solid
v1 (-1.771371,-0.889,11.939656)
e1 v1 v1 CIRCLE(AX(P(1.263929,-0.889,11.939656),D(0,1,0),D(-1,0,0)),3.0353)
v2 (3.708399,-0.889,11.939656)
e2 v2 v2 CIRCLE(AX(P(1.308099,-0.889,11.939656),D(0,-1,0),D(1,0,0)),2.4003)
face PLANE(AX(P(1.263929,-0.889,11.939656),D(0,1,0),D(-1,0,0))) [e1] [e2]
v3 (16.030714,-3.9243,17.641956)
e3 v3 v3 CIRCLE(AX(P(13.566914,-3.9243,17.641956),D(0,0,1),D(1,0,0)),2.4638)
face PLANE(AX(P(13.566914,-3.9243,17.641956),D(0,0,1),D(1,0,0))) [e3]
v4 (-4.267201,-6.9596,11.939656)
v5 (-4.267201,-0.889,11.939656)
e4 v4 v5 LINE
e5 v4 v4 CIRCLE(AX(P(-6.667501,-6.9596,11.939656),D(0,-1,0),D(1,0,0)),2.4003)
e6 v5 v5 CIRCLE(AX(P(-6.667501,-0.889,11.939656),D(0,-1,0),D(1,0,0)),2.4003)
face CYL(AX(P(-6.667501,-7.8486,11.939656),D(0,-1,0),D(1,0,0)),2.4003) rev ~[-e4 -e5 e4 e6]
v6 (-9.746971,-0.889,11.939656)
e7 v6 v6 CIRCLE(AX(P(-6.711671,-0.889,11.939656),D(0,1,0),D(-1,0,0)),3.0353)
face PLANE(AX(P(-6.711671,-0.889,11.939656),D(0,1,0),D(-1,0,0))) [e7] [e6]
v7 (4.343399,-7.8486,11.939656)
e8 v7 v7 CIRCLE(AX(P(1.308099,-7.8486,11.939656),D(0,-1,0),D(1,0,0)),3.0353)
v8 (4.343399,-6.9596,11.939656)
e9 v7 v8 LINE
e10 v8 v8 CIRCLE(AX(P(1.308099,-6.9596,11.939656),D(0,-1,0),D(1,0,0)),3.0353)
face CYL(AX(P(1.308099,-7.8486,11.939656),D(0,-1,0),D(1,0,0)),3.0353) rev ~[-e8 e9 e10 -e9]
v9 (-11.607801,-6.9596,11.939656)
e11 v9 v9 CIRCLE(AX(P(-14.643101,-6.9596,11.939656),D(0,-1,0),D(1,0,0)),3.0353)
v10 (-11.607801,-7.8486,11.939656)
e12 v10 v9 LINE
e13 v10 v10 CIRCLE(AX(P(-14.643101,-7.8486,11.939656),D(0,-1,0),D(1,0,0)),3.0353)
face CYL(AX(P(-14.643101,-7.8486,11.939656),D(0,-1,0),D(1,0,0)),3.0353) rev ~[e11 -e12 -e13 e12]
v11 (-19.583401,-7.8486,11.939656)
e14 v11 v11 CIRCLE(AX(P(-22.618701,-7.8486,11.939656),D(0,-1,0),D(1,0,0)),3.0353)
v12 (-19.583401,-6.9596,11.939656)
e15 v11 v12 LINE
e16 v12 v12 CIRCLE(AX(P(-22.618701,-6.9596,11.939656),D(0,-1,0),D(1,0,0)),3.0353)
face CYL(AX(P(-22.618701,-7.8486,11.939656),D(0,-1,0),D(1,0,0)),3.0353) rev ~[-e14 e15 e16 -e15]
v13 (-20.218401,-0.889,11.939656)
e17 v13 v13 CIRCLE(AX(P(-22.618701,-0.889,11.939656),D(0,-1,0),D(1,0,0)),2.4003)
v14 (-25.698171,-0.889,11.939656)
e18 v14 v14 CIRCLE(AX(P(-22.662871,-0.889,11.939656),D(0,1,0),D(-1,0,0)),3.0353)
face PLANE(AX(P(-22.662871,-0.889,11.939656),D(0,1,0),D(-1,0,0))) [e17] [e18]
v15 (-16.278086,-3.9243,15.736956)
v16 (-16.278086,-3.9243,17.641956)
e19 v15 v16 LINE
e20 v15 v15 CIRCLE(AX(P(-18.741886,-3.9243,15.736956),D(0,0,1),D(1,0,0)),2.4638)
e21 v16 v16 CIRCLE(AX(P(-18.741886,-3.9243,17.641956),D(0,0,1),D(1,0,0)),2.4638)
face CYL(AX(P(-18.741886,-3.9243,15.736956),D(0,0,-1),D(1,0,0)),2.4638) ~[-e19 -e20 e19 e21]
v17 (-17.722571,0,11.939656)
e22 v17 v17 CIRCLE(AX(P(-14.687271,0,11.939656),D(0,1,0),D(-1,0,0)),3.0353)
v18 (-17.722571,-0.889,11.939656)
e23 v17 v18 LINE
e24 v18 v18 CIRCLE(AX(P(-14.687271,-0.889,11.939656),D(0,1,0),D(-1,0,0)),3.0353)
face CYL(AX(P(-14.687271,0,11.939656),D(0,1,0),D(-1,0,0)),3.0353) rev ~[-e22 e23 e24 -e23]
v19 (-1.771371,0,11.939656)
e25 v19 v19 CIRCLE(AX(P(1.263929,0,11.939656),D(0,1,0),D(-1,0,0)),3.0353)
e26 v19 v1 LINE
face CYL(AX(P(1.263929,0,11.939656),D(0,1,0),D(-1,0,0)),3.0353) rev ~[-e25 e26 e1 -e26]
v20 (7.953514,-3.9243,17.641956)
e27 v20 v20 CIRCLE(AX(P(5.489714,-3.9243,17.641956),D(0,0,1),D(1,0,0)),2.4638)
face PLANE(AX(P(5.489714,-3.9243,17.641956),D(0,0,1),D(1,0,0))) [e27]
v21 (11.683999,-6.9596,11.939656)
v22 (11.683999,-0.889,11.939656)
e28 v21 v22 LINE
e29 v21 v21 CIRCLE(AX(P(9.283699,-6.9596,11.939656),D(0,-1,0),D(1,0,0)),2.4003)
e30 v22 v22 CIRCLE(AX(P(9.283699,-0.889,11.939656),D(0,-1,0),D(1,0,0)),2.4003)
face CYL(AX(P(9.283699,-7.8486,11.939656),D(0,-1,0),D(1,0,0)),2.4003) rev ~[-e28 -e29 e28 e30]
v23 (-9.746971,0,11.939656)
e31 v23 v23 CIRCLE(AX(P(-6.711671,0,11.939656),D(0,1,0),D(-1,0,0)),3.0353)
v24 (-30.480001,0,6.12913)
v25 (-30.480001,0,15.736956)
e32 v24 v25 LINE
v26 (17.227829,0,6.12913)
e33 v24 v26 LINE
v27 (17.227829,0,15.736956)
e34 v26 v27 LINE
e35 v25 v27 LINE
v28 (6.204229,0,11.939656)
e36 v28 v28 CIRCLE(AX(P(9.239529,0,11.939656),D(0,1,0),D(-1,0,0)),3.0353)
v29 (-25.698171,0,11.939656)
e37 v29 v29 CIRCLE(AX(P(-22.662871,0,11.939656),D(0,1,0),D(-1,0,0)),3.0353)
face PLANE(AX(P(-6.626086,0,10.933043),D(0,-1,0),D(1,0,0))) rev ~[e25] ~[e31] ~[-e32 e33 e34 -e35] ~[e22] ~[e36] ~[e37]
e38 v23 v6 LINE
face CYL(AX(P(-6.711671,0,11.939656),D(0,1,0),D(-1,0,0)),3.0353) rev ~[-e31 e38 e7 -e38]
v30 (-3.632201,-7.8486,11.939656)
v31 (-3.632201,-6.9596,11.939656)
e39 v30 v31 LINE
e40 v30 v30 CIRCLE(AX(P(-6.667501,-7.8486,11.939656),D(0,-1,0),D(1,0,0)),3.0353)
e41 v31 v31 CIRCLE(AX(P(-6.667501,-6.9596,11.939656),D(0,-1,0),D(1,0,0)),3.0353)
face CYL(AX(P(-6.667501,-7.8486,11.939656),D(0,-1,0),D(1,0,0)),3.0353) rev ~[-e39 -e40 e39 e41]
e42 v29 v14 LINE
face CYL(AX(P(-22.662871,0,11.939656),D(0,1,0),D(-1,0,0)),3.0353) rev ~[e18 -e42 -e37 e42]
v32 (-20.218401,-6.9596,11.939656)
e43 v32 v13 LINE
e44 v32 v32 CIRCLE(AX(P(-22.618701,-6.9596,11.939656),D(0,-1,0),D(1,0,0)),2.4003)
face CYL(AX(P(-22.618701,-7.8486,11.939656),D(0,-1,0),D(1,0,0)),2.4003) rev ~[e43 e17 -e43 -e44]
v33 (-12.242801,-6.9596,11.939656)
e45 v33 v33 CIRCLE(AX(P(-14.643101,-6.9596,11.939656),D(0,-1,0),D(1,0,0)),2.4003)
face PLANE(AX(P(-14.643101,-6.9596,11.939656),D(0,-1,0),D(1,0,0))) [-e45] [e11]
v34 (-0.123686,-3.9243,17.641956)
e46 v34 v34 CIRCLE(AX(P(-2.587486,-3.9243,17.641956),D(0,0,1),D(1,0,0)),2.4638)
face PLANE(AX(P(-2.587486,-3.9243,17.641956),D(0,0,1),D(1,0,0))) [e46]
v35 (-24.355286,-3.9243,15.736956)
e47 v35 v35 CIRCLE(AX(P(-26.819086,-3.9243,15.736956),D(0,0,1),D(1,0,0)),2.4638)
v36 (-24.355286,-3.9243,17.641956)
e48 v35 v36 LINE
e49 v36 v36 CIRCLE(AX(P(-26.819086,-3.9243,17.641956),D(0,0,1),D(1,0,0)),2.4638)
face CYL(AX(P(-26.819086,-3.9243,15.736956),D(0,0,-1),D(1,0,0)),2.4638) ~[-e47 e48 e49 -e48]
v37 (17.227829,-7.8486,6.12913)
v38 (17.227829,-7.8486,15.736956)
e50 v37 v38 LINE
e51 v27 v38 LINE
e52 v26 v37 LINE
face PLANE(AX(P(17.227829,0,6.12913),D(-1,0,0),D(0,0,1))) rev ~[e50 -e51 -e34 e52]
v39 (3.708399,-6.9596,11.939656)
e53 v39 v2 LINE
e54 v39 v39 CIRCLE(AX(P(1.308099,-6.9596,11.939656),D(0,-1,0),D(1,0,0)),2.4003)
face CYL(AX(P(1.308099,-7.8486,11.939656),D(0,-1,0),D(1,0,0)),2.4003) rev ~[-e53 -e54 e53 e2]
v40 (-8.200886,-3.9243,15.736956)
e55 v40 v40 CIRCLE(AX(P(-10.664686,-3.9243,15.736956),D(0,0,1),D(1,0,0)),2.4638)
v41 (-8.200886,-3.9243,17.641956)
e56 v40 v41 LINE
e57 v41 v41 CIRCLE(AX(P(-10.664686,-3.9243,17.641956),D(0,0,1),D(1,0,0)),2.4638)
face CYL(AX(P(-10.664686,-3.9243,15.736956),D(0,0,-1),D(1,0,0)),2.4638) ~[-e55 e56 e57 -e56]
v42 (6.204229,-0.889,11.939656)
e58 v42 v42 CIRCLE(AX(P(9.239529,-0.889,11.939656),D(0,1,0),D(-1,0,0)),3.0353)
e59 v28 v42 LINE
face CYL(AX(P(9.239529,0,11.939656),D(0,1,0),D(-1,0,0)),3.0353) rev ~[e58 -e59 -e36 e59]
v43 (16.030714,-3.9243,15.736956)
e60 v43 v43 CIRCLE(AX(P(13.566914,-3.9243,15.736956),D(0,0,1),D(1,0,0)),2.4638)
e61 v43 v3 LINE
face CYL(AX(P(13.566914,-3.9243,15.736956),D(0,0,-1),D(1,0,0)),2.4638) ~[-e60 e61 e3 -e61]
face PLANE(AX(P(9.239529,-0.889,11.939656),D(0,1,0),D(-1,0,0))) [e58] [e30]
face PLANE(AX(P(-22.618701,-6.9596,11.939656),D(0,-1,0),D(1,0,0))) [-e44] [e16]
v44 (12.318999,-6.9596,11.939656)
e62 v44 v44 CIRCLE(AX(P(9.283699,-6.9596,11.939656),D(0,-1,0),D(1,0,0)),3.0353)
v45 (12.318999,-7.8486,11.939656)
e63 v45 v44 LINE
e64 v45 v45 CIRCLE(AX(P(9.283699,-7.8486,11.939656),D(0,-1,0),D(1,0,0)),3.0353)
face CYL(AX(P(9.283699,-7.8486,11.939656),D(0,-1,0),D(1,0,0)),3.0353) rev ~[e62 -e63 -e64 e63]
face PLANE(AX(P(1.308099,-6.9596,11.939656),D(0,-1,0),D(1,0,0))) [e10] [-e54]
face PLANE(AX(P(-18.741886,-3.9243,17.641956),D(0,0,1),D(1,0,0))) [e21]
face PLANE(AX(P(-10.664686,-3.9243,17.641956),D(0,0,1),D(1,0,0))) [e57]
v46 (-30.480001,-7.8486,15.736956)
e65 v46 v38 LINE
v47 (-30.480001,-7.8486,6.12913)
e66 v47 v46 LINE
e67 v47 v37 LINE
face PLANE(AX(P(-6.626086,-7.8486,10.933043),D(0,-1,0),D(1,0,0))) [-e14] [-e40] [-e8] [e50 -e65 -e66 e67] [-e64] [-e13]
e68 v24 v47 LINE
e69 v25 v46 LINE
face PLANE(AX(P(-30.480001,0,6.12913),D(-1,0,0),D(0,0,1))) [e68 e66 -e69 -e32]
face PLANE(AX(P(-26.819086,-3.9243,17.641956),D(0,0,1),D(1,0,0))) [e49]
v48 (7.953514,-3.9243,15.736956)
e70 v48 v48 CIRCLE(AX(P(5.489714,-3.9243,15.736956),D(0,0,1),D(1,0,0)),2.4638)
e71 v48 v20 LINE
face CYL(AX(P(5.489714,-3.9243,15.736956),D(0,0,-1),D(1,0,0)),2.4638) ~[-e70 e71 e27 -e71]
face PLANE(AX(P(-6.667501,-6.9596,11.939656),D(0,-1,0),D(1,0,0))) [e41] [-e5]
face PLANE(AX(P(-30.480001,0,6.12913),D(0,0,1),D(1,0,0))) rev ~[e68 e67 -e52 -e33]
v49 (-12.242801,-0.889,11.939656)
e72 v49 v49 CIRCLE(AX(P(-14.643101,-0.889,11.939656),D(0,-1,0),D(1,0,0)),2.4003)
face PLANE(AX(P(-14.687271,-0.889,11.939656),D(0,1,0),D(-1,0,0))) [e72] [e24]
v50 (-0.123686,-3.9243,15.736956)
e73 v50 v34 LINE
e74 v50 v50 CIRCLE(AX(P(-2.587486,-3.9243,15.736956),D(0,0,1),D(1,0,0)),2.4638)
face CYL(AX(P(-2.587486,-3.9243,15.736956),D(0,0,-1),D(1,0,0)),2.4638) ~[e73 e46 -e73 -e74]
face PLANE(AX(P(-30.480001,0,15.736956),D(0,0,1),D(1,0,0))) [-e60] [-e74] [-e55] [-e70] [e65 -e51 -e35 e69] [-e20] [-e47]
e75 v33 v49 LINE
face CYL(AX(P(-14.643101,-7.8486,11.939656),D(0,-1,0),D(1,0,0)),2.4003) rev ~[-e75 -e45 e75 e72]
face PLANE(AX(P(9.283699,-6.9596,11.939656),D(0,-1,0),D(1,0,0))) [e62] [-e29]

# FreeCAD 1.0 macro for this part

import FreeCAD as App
import Part
import Sketcher
Q = App.Units.Quantity

doc = App.newDocument("Part")
body = doc.addObject("PartDesign::Body", "Body")

# Sketch on XZ plane
sketch1 = doc.addObject("Sketcher::SketchObject", "Sketch")
body.addObject(sketch1)
sketch1.AttachmentSupport = (doc.XZ_Plane, [""])
sketch1.MapMode = "FlatFace"
sketch1.addGeometry([
    Part.LineSegment(App.Vector(-30.480001, 15.736956, 0), App.Vector(-30.480001, 6.12913, 0)),
    Part.LineSegment(App.Vector(-30.480001, 6.12913, 0), App.Vector(17.227829, 6.12913, 0)),
    Part.LineSegment(App.Vector(17.227829, 6.12913, 0), App.Vector(17.227829, 15.736956, 0)),
    Part.LineSegment(App.Vector(17.227829, 15.736956, 0), App.Vector(-30.480001, 15.736956, 0)),
], False)
sketch1.addConstraint([
    Sketcher.Constraint("Coincident", 0, 2, 1, 1),
    Sketcher.Constraint("Coincident", 1, 2, 2, 1),
    Sketcher.Constraint("Coincident", 2, 2, 3, 1),
    Sketcher.Constraint("Coincident", 3, 2, 0, 1),
    Sketcher.Constraint("Vertical", 0),
    Sketcher.Constraint("Horizontal", 1),
    Sketcher.Constraint("Vertical", 2),
    Sketcher.Constraint("Horizontal", 3),
    Sketcher.Constraint("DistanceX", 0, 2, -1, 1, Q("1.2 in")),
    Sketcher.Constraint("DistanceX", 1, 1, 1, 2, Q("47.70783 mm")),
    Sketcher.Constraint("DistanceY", 0, 2, 0, 1, Q("9.607826 mm")),
    Sketcher.Constraint("DistanceY", -1, 1, 0, 2, Q("6.12913 mm")),
])
pad1 = doc.addObject("PartDesign::Pad", "Pad")
body.addObject(pad1)
pad1.Profile = sketch1
pad1.Length = Q("0.309 in")

# Sketch on XZ plane
sketch2 = doc.addObject("Sketcher::SketchObject", "Sketch001")
body.addObject(sketch2)
sketch2.AttachmentSupport = (doc.XZ_Plane, [""])
sketch2.MapMode = "FlatFace"
sketch2.AttachmentOffset = App.Placement(App.Vector(0, 0, 0.309 * 25.4), App.Rotation())
sketch2.addGeometry([
    Part.Circle(App.Vector(-22.618701, 11.939656, 0), App.Vector(0, 0, 1), 3.0353),  # 0
    Part.Circle(App.Vector(-14.643101, 11.939656, 0), App.Vector(0, 0, 1), 3.0353),  # 1
    Part.Circle(App.Vector(-6.667501, 11.939656, 0), App.Vector(0, 0, 1), 3.0353),  # 2
    Part.Circle(App.Vector(1.308099, 11.939656, 0), App.Vector(0, 0, 1), 3.0353),  # 3
    Part.Circle(App.Vector(9.283699, 11.939656, 0), App.Vector(0, 0, 1), 3.0353),  # 4
], False)
sketch2.addConstraint([
    Sketcher.Constraint("Equal", 0, 1),
    Sketcher.Constraint("Equal", 1, 2),
    Sketcher.Constraint("Equal", 2, 3),
    Sketcher.Constraint("Equal", 3, 4),
    Sketcher.Constraint("Horizontal", 0, 3, 1, 3),
    Sketcher.Constraint("Horizontal", 1, 3, 2, 3),
    Sketcher.Constraint("Horizontal", 2, 3, 3, 3),
    Sketcher.Constraint("Horizontal", 3, 3, 4, 3),
    Sketcher.Constraint("Diameter", 0, Q("0.239 in")),
    Sketcher.Constraint("DistanceX", 0, 3, 1, 3, Q("0.314 in")),
    Sketcher.Constraint("DistanceX", 1, 3, 2, 3, Q("0.314 in")),
    Sketcher.Constraint("DistanceX", 2, 3, 3, 3, Q("0.314 in")),
    Sketcher.Constraint("DistanceX", 3, 3, 4, 3, Q("0.314 in")),
    Sketcher.Constraint("DistanceX", 0, 3, -1, 1, Q("0.8905 in")),
    Sketcher.Constraint("DistanceY", -1, 1, 0, 3, Q("11.939656 mm")),
])
pocket1 = doc.addObject("PartDesign::Pocket", "Pocket")
body.addObject(pocket1)
pocket1.Profile = sketch2
pocket1.Length = Q("0.035 in")

# Sketch on XZ plane
sketch3 = doc.addObject("Sketcher::SketchObject", "Sketch002")
body.addObject(sketch3)
sketch3.AttachmentSupport = (doc.XZ_Plane, [""])
sketch3.MapMode = "FlatFace"
sketch3.addGeometry([
    Part.Circle(App.Vector(9.239529, 11.939656, 0), App.Vector(0, 0, 1), 3.0353),  # 0
    Part.Circle(App.Vector(1.263929, 11.939656, 0), App.Vector(0, 0, 1), 3.0353),  # 1
    Part.Circle(App.Vector(-6.711671, 11.939656, 0), App.Vector(0, 0, 1), 3.0353),  # 2
    Part.Circle(App.Vector(-14.687271, 11.939656, 0), App.Vector(0, 0, 1), 3.0353),  # 3
    Part.Circle(App.Vector(-22.662871, 11.939656, 0), App.Vector(0, 0, 1), 3.0353),  # 4
], False)
sketch3.addConstraint([
    Sketcher.Constraint("Equal", 0, 1),
    Sketcher.Constraint("Equal", 1, 2),
    Sketcher.Constraint("Equal", 2, 3),
    Sketcher.Constraint("Equal", 3, 4),
    Sketcher.Constraint("Horizontal", 0, 3, 1, 3),
    Sketcher.Constraint("Horizontal", 1, 3, 2, 3),
    Sketcher.Constraint("Horizontal", 2, 3, 3, 3),
    Sketcher.Constraint("Horizontal", 3, 3, 4, 3),
    Sketcher.Constraint("Diameter", 0, Q("0.239 in")),
    Sketcher.Constraint("DistanceX", 1, 3, 0, 3, Q("0.314 in")),
    Sketcher.Constraint("DistanceX", 2, 3, 1, 3, Q("0.314 in")),
    Sketcher.Constraint("DistanceX", 3, 3, 2, 3, Q("0.314 in")),
    Sketcher.Constraint("DistanceX", 4, 3, 3, 3, Q("0.314 in")),
    Sketcher.Constraint("DistanceX", -1, 1, 0, 3, Q("9.239529 mm")),
    Sketcher.Constraint("DistanceY", -1, 1, 0, 3, Q("11.939656 mm")),
])
pocket2 = doc.addObject("PartDesign::Pocket", "Pocket001")
body.addObject(pocket2)
pocket2.Profile = sketch3
pocket2.Length = Q("0.035 in")
pocket2.Reversed = True

# Sketch on XZ plane
sketch4 = doc.addObject("Sketcher::SketchObject", "Sketch003")
body.addObject(sketch4)
sketch4.AttachmentSupport = (doc.XZ_Plane, [""])
sketch4.MapMode = "FlatFace"
sketch4.AttachmentOffset = App.Placement(App.Vector(0, 0, 0.309 * 25.4), App.Rotation())
sketch4.addGeometry([
    Part.Circle(App.Vector(-22.618701, 11.939656, 0), App.Vector(0, 0, 1), 2.4003),  # 0
    Part.Circle(App.Vector(-14.643101, 11.939656, 0), App.Vector(0, 0, 1), 2.4003),  # 1
    Part.Circle(App.Vector(-6.667501, 11.939656, 0), App.Vector(0, 0, 1), 2.4003),  # 2
    Part.Circle(App.Vector(1.308099, 11.939656, 0), App.Vector(0, 0, 1), 2.4003),  # 3
    Part.Circle(App.Vector(9.283699, 11.939656, 0), App.Vector(0, 0, 1), 2.4003),  # 4
], False)
sketch4.addConstraint([
    Sketcher.Constraint("Equal", 0, 1),
    Sketcher.Constraint("Equal", 1, 2),
    Sketcher.Constraint("Equal", 2, 3),
    Sketcher.Constraint("Equal", 3, 4),
    Sketcher.Constraint("Horizontal", 0, 3, 1, 3),
    Sketcher.Constraint("Horizontal", 1, 3, 2, 3),
    Sketcher.Constraint("Horizontal", 2, 3, 3, 3),
    Sketcher.Constraint("Horizontal", 3, 3, 4, 3),
    Sketcher.Constraint("Diameter", 0, Q("0.189 in")),
    Sketcher.Constraint("DistanceX", 0, 3, 1, 3, Q("0.314 in")),
    Sketcher.Constraint("DistanceX", 1, 3, 2, 3, Q("0.314 in")),
    Sketcher.Constraint("DistanceX", 2, 3, 3, 3, Q("0.314 in")),
    Sketcher.Constraint("DistanceX", 3, 3, 4, 3, Q("0.314 in")),
    Sketcher.Constraint("DistanceX", 0, 3, -1, 1, Q("0.8905 in")),
    Sketcher.Constraint("DistanceY", -1, 1, 0, 3, Q("11.939656 mm")),
])
pocket3 = doc.addObject("PartDesign::Pocket", "Pocket002")
body.addObject(pocket3)
pocket3.Profile = sketch4
pocket3.Type = "ThroughAll"

# Sketch on XY plane
sketch5 = doc.addObject("Sketcher::SketchObject", "Sketch004")
body.addObject(sketch5)
sketch5.AttachmentSupport = (doc.XY_Plane, [""])
sketch5.MapMode = "FlatFace"
sketch5.AttachmentOffset = App.Placement(App.Vector(0, 0, 15.736956), App.Rotation())
sketch5.addGeometry([
    Part.Circle(App.Vector(-26.819086, -3.9243, 0), App.Vector(0, 0, 1), 2.4638),  # 0
    Part.Circle(App.Vector(-18.741886, -3.9243, 0), App.Vector(0, 0, 1), 2.4638),  # 1
    Part.Circle(App.Vector(-10.664686, -3.9243, 0), App.Vector(0, 0, 1), 2.4638),  # 2
    Part.Circle(App.Vector(-2.587486, -3.9243, 0), App.Vector(0, 0, 1), 2.4638),  # 3
    Part.Circle(App.Vector(5.489714, -3.9243, 0), App.Vector(0, 0, 1), 2.4638),  # 4
    Part.Circle(App.Vector(13.566914, -3.9243, 0), App.Vector(0, 0, 1), 2.4638),  # 5
], False)
sketch5.addConstraint([
    Sketcher.Constraint("Equal", 0, 1),
    Sketcher.Constraint("Equal", 1, 2),
    Sketcher.Constraint("Equal", 2, 3),
    Sketcher.Constraint("Equal", 3, 4),
    Sketcher.Constraint("Equal", 4, 5),
    Sketcher.Constraint("Horizontal", 0, 3, 1, 3),
    Sketcher.Constraint("Horizontal", 1, 3, 2, 3),
    Sketcher.Constraint("Horizontal", 2, 3, 3, 3),
    Sketcher.Constraint("Horizontal", 3, 3, 4, 3),
    Sketcher.Constraint("Horizontal", 4, 3, 5, 3),
    Sketcher.Constraint("Diameter", 0, Q("0.194 in")),
    Sketcher.Constraint("DistanceX", 0, 3, 5, 3, Q("1.59 in")),
    Sketcher.Constraint("DistanceX", 0, 3, 1, 3, Q("0.318 in")),
    Sketcher.Constraint("DistanceX", 1, 3, 2, 3, Q("0.318 in")),
    Sketcher.Constraint("DistanceX", 2, 3, 3, 3, Q("0.318 in")),
    Sketcher.Constraint("DistanceX", 3, 3, 4, 3, Q("0.318 in")),
    Sketcher.Constraint("DistanceY", 0, 3, -1, 1, Q("0.1545 in")),
    Sketcher.Constraint("DistanceX", 0, 3, -1, 1, Q("26.819086 mm")),
])
pad2 = doc.addObject("PartDesign::Pad", "Pad001")
body.addObject(pad2)
pad2.Profile = sketch5
pad2.Length = Q("0.075 in")

doc.recompute()
